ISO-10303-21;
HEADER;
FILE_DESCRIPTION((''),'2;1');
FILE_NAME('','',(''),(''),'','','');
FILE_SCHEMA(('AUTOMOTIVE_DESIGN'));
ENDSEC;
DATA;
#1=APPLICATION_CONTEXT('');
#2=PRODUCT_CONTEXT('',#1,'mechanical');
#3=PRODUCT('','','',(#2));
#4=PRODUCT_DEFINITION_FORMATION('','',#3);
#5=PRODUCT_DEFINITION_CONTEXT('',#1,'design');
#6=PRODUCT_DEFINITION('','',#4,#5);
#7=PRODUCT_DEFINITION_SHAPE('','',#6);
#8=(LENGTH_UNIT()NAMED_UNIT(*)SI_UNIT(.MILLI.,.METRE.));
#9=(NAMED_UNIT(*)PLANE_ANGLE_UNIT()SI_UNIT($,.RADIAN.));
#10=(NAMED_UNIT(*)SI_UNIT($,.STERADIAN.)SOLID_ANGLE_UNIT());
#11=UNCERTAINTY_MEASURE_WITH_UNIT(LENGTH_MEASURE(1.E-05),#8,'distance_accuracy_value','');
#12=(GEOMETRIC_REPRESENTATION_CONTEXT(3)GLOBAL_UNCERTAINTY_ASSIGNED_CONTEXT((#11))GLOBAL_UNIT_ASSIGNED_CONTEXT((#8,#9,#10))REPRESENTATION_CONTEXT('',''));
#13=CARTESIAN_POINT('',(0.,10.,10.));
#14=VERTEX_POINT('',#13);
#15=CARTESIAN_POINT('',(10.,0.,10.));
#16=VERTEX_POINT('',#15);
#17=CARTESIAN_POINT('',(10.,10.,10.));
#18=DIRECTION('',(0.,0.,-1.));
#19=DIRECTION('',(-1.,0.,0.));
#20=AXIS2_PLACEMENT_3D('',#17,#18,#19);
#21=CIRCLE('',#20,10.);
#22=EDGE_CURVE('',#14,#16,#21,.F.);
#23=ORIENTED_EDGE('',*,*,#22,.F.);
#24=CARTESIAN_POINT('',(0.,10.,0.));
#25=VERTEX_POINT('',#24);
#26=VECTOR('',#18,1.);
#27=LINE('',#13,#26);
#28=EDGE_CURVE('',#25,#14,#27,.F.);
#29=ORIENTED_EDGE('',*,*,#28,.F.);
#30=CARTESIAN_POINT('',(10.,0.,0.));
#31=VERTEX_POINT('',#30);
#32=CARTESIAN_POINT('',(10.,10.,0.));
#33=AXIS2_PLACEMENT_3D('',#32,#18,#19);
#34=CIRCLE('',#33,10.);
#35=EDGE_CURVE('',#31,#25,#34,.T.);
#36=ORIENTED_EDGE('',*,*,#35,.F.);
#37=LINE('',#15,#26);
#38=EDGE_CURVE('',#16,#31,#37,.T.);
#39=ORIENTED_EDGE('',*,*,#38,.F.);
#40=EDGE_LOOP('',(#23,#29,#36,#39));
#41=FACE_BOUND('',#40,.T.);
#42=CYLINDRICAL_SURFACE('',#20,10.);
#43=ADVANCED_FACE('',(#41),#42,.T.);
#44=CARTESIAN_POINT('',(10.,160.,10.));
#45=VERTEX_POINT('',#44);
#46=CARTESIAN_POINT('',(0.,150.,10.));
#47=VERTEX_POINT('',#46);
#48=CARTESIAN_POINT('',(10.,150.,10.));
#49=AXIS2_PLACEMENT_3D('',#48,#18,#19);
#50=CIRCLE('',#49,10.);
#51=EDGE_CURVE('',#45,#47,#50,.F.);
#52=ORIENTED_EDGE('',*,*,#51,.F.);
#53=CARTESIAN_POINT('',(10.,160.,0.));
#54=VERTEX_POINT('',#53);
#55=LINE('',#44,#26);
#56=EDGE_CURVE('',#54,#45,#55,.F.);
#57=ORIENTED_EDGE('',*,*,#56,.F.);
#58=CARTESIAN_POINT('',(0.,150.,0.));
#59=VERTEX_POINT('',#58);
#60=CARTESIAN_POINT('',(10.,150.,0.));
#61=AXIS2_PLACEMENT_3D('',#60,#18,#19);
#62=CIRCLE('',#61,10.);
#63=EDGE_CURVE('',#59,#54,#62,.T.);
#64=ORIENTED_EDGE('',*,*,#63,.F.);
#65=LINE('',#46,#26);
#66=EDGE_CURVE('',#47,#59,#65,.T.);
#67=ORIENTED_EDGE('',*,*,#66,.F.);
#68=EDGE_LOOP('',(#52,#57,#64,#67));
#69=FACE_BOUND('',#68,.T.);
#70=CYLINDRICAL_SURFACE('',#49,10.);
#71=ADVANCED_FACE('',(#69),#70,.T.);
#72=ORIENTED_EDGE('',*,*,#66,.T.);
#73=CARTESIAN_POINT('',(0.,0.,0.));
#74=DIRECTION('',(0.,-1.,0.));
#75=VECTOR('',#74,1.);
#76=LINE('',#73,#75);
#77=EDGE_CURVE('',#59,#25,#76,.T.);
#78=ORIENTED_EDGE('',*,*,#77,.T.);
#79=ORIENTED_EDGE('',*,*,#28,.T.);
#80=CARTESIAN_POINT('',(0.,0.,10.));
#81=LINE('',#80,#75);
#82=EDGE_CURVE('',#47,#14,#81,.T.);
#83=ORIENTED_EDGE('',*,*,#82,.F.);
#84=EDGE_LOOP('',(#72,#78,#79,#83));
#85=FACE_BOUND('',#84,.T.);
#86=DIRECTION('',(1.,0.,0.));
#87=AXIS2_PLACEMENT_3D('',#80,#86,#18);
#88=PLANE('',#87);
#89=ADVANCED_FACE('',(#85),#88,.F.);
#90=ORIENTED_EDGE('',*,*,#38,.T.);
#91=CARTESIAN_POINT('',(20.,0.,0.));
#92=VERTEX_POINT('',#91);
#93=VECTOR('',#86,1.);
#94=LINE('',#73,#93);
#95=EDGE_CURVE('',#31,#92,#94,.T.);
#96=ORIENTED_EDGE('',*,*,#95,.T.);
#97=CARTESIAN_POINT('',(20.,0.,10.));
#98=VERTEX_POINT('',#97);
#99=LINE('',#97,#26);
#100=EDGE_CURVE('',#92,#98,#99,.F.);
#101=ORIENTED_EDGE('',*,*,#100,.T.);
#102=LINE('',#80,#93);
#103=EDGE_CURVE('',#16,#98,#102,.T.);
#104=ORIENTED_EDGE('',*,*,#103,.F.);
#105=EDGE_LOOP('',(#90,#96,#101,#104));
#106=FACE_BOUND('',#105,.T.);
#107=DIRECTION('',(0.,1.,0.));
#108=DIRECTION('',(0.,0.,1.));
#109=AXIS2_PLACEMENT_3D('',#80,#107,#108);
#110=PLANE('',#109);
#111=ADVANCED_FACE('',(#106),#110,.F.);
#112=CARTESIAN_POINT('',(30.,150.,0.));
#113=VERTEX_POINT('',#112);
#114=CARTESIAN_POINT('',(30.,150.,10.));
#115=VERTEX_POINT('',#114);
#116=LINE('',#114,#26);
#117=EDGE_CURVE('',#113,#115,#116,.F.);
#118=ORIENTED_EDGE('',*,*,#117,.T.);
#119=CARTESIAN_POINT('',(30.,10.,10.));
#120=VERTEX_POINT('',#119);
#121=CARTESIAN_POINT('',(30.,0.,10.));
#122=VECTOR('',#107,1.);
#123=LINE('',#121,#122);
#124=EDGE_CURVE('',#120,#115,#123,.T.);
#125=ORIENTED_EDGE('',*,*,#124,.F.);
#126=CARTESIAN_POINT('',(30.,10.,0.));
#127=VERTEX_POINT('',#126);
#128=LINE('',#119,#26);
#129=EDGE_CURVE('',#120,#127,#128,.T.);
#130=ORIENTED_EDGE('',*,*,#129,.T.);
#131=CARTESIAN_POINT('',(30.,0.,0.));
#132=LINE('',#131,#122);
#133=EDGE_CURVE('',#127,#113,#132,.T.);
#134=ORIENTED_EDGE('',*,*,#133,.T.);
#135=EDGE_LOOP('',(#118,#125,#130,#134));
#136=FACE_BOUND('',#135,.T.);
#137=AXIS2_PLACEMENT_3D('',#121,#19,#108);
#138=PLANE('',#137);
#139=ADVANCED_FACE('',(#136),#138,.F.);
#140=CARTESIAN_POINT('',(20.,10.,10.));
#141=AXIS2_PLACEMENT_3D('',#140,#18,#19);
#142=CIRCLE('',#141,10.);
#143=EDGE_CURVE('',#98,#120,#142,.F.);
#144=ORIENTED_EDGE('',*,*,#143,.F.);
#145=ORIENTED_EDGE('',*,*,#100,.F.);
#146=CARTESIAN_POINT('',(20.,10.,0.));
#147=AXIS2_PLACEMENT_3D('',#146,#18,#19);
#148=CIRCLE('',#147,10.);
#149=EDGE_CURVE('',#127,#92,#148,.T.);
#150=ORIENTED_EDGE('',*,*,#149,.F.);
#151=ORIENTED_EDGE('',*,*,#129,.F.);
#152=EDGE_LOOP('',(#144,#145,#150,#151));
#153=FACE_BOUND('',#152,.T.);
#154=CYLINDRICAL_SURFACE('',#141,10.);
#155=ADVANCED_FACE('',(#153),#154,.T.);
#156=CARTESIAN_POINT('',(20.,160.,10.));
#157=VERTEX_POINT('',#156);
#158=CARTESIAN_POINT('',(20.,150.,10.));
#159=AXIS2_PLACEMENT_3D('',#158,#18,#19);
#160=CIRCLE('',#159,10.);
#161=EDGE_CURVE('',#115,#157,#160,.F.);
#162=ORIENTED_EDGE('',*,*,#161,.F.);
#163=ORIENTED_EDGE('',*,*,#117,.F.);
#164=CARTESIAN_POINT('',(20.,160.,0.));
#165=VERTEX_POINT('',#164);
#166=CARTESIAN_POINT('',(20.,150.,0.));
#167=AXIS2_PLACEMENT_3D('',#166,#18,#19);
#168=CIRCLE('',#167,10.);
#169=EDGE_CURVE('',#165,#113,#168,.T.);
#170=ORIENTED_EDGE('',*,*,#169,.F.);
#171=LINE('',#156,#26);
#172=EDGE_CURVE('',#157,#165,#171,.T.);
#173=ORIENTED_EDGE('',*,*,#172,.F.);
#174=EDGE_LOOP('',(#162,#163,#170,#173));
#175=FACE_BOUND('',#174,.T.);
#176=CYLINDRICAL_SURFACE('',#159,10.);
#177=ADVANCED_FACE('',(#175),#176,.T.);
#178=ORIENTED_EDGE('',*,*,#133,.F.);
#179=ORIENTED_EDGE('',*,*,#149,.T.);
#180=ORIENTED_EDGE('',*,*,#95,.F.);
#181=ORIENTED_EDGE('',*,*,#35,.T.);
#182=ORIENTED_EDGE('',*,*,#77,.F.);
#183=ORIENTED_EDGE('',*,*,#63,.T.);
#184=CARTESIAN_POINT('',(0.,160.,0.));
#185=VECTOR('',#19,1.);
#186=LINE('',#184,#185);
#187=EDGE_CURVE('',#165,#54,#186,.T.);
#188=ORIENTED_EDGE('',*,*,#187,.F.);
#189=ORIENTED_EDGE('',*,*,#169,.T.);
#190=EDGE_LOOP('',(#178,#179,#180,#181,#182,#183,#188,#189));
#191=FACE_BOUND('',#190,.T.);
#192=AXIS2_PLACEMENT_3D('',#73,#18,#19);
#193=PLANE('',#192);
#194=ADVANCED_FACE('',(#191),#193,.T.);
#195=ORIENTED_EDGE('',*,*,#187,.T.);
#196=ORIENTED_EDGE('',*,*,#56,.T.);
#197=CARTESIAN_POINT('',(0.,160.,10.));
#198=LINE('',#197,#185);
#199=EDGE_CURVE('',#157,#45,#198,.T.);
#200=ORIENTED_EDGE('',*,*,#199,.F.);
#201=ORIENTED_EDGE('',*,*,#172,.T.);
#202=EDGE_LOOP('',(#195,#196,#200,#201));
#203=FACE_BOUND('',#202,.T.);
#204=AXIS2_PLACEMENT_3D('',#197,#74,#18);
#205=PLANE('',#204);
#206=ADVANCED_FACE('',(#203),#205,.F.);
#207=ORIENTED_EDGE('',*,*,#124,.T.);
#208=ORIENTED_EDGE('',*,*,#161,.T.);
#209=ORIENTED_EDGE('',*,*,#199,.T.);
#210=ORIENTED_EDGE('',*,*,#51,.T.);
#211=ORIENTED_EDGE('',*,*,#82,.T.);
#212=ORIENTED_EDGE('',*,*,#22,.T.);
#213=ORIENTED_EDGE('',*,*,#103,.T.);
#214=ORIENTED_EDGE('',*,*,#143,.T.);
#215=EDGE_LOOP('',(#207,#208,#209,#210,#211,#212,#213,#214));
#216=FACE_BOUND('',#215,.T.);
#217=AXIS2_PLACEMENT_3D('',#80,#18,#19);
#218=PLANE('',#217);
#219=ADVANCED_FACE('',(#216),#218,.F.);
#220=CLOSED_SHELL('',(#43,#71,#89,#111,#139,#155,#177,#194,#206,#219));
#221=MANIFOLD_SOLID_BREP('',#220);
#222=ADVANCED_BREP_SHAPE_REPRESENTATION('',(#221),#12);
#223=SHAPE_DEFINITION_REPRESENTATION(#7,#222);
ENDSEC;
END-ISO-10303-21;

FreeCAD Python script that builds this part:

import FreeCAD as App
import Part
import Sketcher

V = App.Vector


def edges_at(feature, points):
    """Names of the edges that pass closest to the given points."""
    edges = feature.Shape.Edges
    near = lambda p: min(range(len(edges)), key=lambda i: edges[i].distToShape(Part.Vertex(*p))[0])
    return sorted({f"Edge{near(p) + 1}" for p in points})

doc = App.newDocument("Part")
body = doc.addObject("PartDesign::Body", "Body")

# Sketch on XY plane
sketch1 = body.newObject("Sketcher::SketchObject", "Sketch")
sketch1.AttachmentSupport = (doc.getObject("XY_Plane"), [""])
sketch1.MapMode = "FlatFace"
sketch1.addGeometry([
    Part.LineSegment(V(0, 160, 0), V(0, 0, 0)),
    Part.LineSegment(V(0, 0, 0), V(30, 0, 0)),
    Part.LineSegment(V(30, 0, 0), V(30, 160, 0)),
    Part.LineSegment(V(30, 160, 0), V(0, 160, 0)),
], False)
sketch1.addConstraint([
    Sketcher.Constraint("Coincident", 0, 2, 1, 1),
    Sketcher.Constraint("Coincident", 1, 2, 2, 1),
    Sketcher.Constraint("Coincident", 2, 2, 3, 1),
    Sketcher.Constraint("Coincident", 3, 2, 0, 1),
    Sketcher.Constraint("Vertical", 0),
    Sketcher.Constraint("Horizontal", 1),
    Sketcher.Constraint("Vertical", 2),
    Sketcher.Constraint("Horizontal", 3),
    Sketcher.Constraint("Coincident", 0, 2, -1, 1),
    Sketcher.Constraint("DistanceX", 1, 1, 1, 2, 30.0),
    Sketcher.Constraint("DistanceY", 0, 2, 0, 1, 160.0),
])
pad1 = body.newObject("PartDesign::Pad", "Pad")
pad1.Profile = sketch1
pad1.Length = 10
doc.recompute()

fillet = body.newObject("PartDesign::Fillet", "Fillet")
fillet.Base = (pad1, edges_at(pad1, [
    (0, 160, 5),
    (30, 160, 5),
    (30, 0, 5),
    (0, 0, 5),
]))
fillet.Radius = 10

doc.recompute()
